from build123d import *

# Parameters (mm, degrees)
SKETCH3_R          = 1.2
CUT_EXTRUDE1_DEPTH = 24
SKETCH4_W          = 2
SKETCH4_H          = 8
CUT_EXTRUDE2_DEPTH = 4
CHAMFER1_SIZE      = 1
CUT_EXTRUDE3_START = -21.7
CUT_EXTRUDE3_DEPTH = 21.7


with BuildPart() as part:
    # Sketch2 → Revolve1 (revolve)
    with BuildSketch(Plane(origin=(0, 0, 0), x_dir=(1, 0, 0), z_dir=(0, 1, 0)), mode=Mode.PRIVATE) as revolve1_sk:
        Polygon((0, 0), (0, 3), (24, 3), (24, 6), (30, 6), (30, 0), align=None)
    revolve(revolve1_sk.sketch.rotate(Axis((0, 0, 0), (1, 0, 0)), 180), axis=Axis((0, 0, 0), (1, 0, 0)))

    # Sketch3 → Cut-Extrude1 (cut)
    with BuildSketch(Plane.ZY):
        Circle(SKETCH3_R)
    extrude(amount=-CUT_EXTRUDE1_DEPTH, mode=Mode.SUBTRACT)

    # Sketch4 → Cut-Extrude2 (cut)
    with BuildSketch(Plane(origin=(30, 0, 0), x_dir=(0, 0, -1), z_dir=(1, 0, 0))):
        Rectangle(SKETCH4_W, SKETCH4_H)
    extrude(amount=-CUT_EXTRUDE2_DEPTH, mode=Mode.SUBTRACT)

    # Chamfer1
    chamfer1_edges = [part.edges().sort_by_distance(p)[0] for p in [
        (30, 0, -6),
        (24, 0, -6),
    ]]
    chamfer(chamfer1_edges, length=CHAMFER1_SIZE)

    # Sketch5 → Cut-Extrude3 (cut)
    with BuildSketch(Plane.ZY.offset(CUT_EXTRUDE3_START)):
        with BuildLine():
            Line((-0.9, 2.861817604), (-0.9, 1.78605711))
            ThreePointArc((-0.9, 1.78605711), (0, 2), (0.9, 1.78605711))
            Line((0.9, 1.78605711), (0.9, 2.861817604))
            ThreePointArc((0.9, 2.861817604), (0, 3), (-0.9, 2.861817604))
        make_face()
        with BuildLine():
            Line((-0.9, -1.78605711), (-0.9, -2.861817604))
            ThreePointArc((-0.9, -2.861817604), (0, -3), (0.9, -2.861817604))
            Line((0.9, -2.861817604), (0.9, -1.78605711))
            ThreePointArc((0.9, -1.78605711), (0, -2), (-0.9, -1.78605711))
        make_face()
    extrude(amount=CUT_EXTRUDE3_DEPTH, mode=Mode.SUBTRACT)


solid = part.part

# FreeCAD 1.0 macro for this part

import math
import FreeCAD as App
import Part
import Sketcher


def edges_at(feature, points):
    """Names of the edges that pass closest to the given points."""
    edges = feature.Shape.Edges
    near = lambda p: min(range(len(edges)), key=lambda i: edges[i].distToShape(Part.Vertex(*p))[0])
    return sorted({f"Edge{near(p) + 1}" for p in points})


def add_polygon(sketch, points):
    """Adds a closed chain of lines whose ends are joined by coincident constraints."""
    first, n = sketch.GeometryCount, len(points)
    for a, b in zip(points, points[1:] + points[:1]):
        sketch.addGeometry(Part.LineSegment(App.Vector(*a, 0), App.Vector(*b, 0)), False)
    for i in range(n):
        sketch.addConstraint(Sketcher.Constraint("Coincident", first + i, 2, first + (i + 1) % n, 1))

doc = App.newDocument("Part")
body = doc.addObject("PartDesign::Body", "Body")

# Sketch on XZ plane
sketch1 = doc.addObject("Sketcher::SketchObject", "Sketch")
body.addObject(sketch1)
sketch1.AttachmentSupport = (doc.XZ_Plane, [""])
sketch1.MapMode = "FlatFace"
add_polygon(sketch1, [(0, -3), (0, 0), (30, 0), (30, -6), (24, -6), (24, -3)])  # lines 0-5
sketch1.addConstraint(Sketcher.Constraint("Vertical", 0))
sketch1.addConstraint(Sketcher.Constraint("Horizontal", 1))
sketch1.addConstraint(Sketcher.Constraint("Vertical", 2))
sketch1.addConstraint(Sketcher.Constraint("Horizontal", 3))
sketch1.addConstraint(Sketcher.Constraint("Vertical", 4))
sketch1.addConstraint(Sketcher.Constraint("Horizontal", 5))
sketch1.addConstraint(Sketcher.Constraint("Coincident", 0, 2, -1, 1))
sketch1.addConstraint(Sketcher.Constraint("Equal", 3, 2))
sketch1.addConstraint(Sketcher.Constraint("Equal", 0, 4))
sketch1.addConstraint(Sketcher.Constraint("DistanceX", 1, 1, 1, 2, 30.0))
sketch1.addConstraint(Sketcher.Constraint("DistanceX", 3, 2, 3, 1, 6.0))
revolution = doc.addObject("PartDesign::Revolution", "Revolution")
body.addObject(revolution)
revolution.Profile = sketch1
revolution.ReferenceAxis = (sketch1, ["H_Axis"])
revolution.Angle = 360

# Sketch on YZ plane
sketch2 = doc.addObject("Sketcher::SketchObject", "Sketch001")
body.addObject(sketch2)
sketch2.AttachmentSupport = (doc.YZ_Plane, [""])
sketch2.MapMode = "FlatFace"
sketch2.addGeometry(Part.Circle(App.Vector(0, 0, 0), App.Vector(0, 0, 1), 1.2), False)
sketch2.addConstraint(Sketcher.Constraint("Coincident", 0, 3, -1, 1))
sketch2.addConstraint(Sketcher.Constraint("Diameter", 0, 2.4))
pocket1 = doc.addObject("PartDesign::Pocket", "Pocket")
body.addObject(pocket1)
pocket1.Profile = sketch2
pocket1.Length = 24
pocket1.Reversed = True

# Sketch on YZ plane
sketch3 = doc.addObject("Sketcher::SketchObject", "Sketch002")
body.addObject(sketch3)
sketch3.AttachmentSupport = (doc.YZ_Plane, [""])
sketch3.MapMode = "FlatFace"
sketch3.AttachmentOffset = App.Placement(App.Vector(0, 0, 30), App.Rotation())
add_polygon(sketch3, [(4, 1), (-4, 1), (-4, -1), (4, -1)])  # lines 0-3
sketch3.addConstraint(Sketcher.Constraint("Horizontal", 0))
sketch3.addConstraint(Sketcher.Constraint("Vertical", 1))
sketch3.addConstraint(Sketcher.Constraint("Horizontal", 2))
sketch3.addConstraint(Sketcher.Constraint("Vertical", 3))
sketch3.addConstraint(Sketcher.Constraint("Symmetric", 0, 2, 2, 2, -1, 1))
sketch3.addConstraint(Sketcher.Constraint("DistanceX", 0, 2, 0, 1, 8.0))
sketch3.addConstraint(Sketcher.Constraint("DistanceY", 1, 2, 1, 1, 2.0))
pocket2 = doc.addObject("PartDesign::Pocket", "Pocket001")
body.addObject(pocket2)
pocket2.Profile = sketch3
pocket2.Length = 4
doc.recompute()

chamfer = doc.addObject("PartDesign::Chamfer", "Chamfer")
body.addObject(chamfer)
chamfer.Base = (pocket2, edges_at(pocket2, [(30, 0, -6), (24, 0, -6)]))
chamfer.Size = 1

# Sketch on YZ plane
sketch4 = doc.addObject("Sketcher::SketchObject", "Sketch003")
body.addObject(sketch4)
sketch4.AttachmentSupport = (doc.YZ_Plane, [""])
sketch4.MapMode = "FlatFace"
sketch4.AttachmentOffset = App.Placement(App.Vector(0, 0, 21.7), App.Rotation())
sketch4.addGeometry(Part.LineSegment(App.Vector(2.9, -0.9, 0), App.Vector(1.8, -0.9, 0)), False)
sketch4.addGeometry(Part.ArcOfCircle(Part.Circle(App.Vector(0, 0, 0), App.Vector(0, 0, 1), 2), math.radians(-27), math.radians(27)), False)
sketch4.addGeometry(Part.LineSegment(App.Vector(1.8, 0.9, 0), App.Vector(2.9, 0.9, 0)), False)
sketch4.addGeometry(Part.ArcOfCircle(Part.Circle(App.Vector(0, 0, 0), App.Vector(0, 0, 1), 3), math.radians(-17), math.radians(17)), False)
sketch4.addGeometry(Part.LineSegment(App.Vector(-1.8, -0.9, 0), App.Vector(-2.9, -0.9, 0)), False)
sketch4.addGeometry(Part.ArcOfCircle(Part.Circle(App.Vector(0, 0, 0), App.Vector(0, 0, 1), 3), math.radians(163), math.radians(197)), False)
sketch4.addGeometry(Part.LineSegment(App.Vector(-2.9, 0.9, 0), App.Vector(-1.8, 0.9, 0)), False)
sketch4.addGeometry(Part.ArcOfCircle(Part.Circle(App.Vector(0, 0, 0), App.Vector(0, 0, 1), 2), math.radians(153), math.radians(207)), False)
sketch4.addConstraint(Sketcher.Constraint("Coincident", 0, 2, 1, 1))
sketch4.addConstraint(Sketcher.Constraint("Coincident", 1, 2, 2, 1))
sketch4.addConstraint(Sketcher.Constraint("Coincident", 2, 2, 3, 2))
sketch4.addConstraint(Sketcher.Constraint("Coincident", 3, 1, 0, 1))
sketch4.addConstraint(Sketcher.Constraint("Coincident", 4, 2, 5, 2))
sketch4.addConstraint(Sketcher.Constraint("Coincident", 5, 1, 6, 1))
sketch4.addConstraint(Sketcher.Constraint("Coincident", 6, 2, 7, 1))
sketch4.addConstraint(Sketcher.Constraint("Coincident", 7, 2, 4, 1))
sketch4.addConstraint(Sketcher.Constraint("Horizontal", 0))
sketch4.addConstraint(Sketcher.Constraint("Horizontal", 2))
sketch4.addConstraint(Sketcher.Constraint("Horizontal", 4))
sketch4.addConstraint(Sketcher.Constraint("Horizontal", 6))
sketch4.addConstraint(Sketcher.Constraint("Coincident", 1, 3, -1, 1))
sketch4.addConstraint(Sketcher.Constraint("Coincident", 3, 3, -1, 1))
sketch4.addConstraint(Sketcher.Constraint("Coincident", 5, 3, -1, 1))
sketch4.addConstraint(Sketcher.Constraint("Coincident", 7, 3, -1, 1))
sketch4.addConstraint(Sketcher.Constraint("Equal", 3, 5))
sketch4.addConstraint(Sketcher.Constraint("Equal", 1, 7))
sketch4.addConstraint(Sketcher.Constraint("Horizontal", 3, 1, 4, 2))
sketch4.addConstraint(Sketcher.Constraint("Horizontal", 2, 2, 5, 1))
sketch4.addConstraint(Sketcher.Constraint("Vertical", 0, 2, 1, 2))
sketch4.addConstraint(Sketcher.Constraint("Radius", 1, 2.0))
sketch4.addConstraint(Sketcher.Constraint("Radius", 3, 3.0))
sketch4.addConstraint(Sketcher.Constraint("DistanceY", 0, 2, -1, 1, 0.9))
pocket3 = doc.addObject("PartDesign::Pocket", "Pocket002")
body.addObject(pocket3)
pocket3.Profile = sketch4
pocket3.Length = 21.7

doc.recompute()
